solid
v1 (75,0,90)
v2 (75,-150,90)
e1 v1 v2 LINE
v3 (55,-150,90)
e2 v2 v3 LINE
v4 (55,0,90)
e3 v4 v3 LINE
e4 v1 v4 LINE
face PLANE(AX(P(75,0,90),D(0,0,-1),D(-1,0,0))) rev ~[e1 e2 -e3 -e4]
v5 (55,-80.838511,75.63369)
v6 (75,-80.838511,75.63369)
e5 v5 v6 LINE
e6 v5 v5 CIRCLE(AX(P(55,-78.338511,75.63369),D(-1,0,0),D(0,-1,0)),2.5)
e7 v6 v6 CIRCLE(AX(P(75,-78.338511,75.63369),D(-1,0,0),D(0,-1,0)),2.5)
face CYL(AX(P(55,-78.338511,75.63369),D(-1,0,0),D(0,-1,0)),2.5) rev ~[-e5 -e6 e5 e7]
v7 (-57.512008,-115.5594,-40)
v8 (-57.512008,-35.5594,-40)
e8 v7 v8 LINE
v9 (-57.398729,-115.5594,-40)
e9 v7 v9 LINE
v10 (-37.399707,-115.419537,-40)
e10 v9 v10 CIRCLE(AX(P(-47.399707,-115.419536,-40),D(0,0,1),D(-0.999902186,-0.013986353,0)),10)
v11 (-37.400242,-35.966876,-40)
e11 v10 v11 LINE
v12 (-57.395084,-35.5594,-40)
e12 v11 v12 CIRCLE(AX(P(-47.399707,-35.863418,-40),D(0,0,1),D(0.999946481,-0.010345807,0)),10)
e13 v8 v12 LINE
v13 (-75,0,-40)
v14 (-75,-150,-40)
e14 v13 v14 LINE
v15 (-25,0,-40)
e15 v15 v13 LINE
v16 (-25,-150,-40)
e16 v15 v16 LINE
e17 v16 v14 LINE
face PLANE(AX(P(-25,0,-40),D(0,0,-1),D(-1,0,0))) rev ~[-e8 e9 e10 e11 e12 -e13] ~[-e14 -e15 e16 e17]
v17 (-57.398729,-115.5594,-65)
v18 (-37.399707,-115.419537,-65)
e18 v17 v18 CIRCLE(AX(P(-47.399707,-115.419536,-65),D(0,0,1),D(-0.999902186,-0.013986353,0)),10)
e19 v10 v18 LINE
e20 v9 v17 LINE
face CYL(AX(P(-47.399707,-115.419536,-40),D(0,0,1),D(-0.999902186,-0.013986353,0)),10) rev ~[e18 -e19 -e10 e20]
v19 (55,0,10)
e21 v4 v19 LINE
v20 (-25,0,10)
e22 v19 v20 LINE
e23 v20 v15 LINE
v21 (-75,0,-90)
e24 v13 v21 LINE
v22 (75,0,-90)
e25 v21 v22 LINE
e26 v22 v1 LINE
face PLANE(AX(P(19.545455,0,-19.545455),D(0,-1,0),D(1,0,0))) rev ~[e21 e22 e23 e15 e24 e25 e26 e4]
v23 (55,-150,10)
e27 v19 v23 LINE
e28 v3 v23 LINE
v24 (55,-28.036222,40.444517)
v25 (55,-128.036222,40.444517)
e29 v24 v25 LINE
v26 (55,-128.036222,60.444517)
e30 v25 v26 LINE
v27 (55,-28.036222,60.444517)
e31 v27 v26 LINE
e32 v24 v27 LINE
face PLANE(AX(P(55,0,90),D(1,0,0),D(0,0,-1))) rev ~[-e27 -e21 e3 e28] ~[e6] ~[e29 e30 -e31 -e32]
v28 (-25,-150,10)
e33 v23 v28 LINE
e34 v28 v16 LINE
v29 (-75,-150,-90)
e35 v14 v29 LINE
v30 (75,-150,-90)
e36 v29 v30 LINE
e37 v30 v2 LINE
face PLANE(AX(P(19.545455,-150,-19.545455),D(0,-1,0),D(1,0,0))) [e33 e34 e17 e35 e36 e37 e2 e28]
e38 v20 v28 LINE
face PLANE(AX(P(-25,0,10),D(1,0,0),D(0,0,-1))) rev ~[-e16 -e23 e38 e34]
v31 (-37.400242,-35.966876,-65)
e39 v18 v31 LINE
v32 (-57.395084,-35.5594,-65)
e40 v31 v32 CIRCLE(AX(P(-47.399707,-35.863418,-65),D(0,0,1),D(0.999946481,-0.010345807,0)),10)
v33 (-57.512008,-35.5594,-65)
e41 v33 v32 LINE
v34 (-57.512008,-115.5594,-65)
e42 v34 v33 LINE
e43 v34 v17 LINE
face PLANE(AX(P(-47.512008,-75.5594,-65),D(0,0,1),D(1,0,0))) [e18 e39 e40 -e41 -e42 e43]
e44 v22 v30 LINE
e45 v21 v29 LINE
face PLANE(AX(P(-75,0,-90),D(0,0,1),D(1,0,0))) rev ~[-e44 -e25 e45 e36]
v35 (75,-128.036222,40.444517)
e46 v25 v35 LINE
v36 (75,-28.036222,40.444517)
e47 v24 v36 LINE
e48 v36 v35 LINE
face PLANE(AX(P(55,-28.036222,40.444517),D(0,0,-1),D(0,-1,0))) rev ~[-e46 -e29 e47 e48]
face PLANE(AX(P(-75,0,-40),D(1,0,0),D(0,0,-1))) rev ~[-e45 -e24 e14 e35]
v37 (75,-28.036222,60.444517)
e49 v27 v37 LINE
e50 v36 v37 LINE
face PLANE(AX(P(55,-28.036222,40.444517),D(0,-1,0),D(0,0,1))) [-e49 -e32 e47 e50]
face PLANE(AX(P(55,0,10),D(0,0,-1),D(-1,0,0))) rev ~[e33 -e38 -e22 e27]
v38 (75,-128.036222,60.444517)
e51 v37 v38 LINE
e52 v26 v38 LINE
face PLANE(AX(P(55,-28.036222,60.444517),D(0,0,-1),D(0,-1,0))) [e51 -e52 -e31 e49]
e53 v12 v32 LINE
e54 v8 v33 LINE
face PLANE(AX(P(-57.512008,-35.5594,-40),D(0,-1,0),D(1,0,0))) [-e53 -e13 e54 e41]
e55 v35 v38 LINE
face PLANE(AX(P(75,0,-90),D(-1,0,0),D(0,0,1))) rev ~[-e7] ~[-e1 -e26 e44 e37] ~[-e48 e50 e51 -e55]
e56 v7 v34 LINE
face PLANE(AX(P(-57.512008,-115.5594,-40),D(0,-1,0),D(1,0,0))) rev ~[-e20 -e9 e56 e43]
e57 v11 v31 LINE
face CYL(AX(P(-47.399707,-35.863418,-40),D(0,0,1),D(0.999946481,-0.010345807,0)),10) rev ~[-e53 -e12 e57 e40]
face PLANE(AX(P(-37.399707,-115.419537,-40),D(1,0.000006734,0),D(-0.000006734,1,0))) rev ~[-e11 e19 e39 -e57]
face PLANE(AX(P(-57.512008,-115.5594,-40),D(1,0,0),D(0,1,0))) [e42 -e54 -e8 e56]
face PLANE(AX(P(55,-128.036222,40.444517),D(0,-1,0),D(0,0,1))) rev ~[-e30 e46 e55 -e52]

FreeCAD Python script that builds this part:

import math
import FreeCAD as App
import Part
import Sketcher
Q = App.Units.Quantity

doc = App.newDocument("Part")
body = doc.addObject("PartDesign::Body", "Body")

sketch1 = body.newObject("Sketcher::SketchObject", "Sketch")
sketch1.AttachmentSupport = (doc.getObject("XZ_Plane"), [""])
sketch1.MapMode = "FlatFace"
sketch1.addGeometry(Part.LineSegment(App.Vector(75, -90, 0), App.Vector(75, 90, 0)), False)
sketch1.addGeometry(Part.LineSegment(App.Vector(75, 90, 0), App.Vector(55, 90, 0)), False)
sketch1.addGeometry(Part.LineSegment(App.Vector(55, 90, 0), App.Vector(55, 10, 0)), False)
sketch1.addGeometry(Part.LineSegment(App.Vector(55, 10, 0), App.Vector(-25, 10, 0)), False)
sketch1.addGeometry(Part.LineSegment(App.Vector(-25, 10, 0), App.Vector(-25, -40, 0)), False)
sketch1.addGeometry(Part.LineSegment(App.Vector(-25, -40, 0), App.Vector(-75, -40, 0)), False)
sketch1.addGeometry(Part.LineSegment(App.Vector(-75, -40, 0), App.Vector(-75, -90, 0)), False)
sketch1.addGeometry(Part.LineSegment(App.Vector(-75, -90, 0), App.Vector(75, -90, 0)), False)
sketch1.addConstraint(Sketcher.Constraint("Coincident", 0, 2, 1, 1))
sketch1.addConstraint(Sketcher.Constraint("Coincident", 1, 2, 2, 1))
sketch1.addConstraint(Sketcher.Constraint("Coincident", 2, 2, 3, 1))
sketch1.addConstraint(Sketcher.Constraint("Coincident", 3, 2, 4, 1))
sketch1.addConstraint(Sketcher.Constraint("Coincident", 4, 2, 5, 1))
sketch1.addConstraint(Sketcher.Constraint("Coincident", 5, 2, 6, 1))
sketch1.addConstraint(Sketcher.Constraint("Coincident", 6, 2, 7, 1))
sketch1.addConstraint(Sketcher.Constraint("Coincident", 7, 2, 0, 1))
sketch1.addConstraint(Sketcher.Constraint("Vertical", 0))
sketch1.addConstraint(Sketcher.Constraint("Horizontal", 1))
sketch1.addConstraint(Sketcher.Constraint("Vertical", 2))
sketch1.addConstraint(Sketcher.Constraint("Horizontal", 3))
sketch1.addConstraint(Sketcher.Constraint("Vertical", 4))
sketch1.addConstraint(Sketcher.Constraint("Horizontal", 5))
sketch1.addConstraint(Sketcher.Constraint("Vertical", 6))
sketch1.addConstraint(Sketcher.Constraint("Horizontal", 7))
sketch1.addConstraint(Sketcher.Constraint("Symmetric", 0, 2, 6, 2, -1, 1))
sketch1.addConstraint(Sketcher.Constraint("Equal", 3, 2))
sketch1.addConstraint(Sketcher.Constraint("Equal", 5, 4))
sketch1.addConstraint(Sketcher.Constraint("Equal", 4, 6))
sketch1.addConstraint(Sketcher.Constraint("DistanceX", 1, 2, 1, 1, Q("20 mm")))
sketch1.addConstraint(Sketcher.Constraint("DistanceX", 3, 2, 3, 1, Q("80 mm")))
sketch1.addConstraint(Sketcher.Constraint("DistanceX", 5, 2, 5, 1, Q("50 mm")))
pad1 = body.newObject("PartDesign::Pad", "Pad")
pad1.Profile = sketch1
pad1.Length = 150

sketch2 = body.newObject("Sketcher::SketchObject", "Sketch001")
sketch2.AttachmentSupport = (doc.getObject("YZ_Plane"), [""])
sketch2.MapMode = "FlatFace"
sketch2.AttachmentOffset = App.Placement(App.Vector(0, 0, 55), App.Rotation())
sketch2.addGeometry(Part.LineSegment(App.Vector(-28, 60, 0), App.Vector(-28, 40, 0)), False)
sketch2.addGeometry(Part.LineSegment(App.Vector(-28, 40, 0), App.Vector(-128, 40, 0)), False)
sketch2.addGeometry(Part.LineSegment(App.Vector(-128, 40, 0), App.Vector(-128, 60, 0)), False)
sketch2.addGeometry(Part.LineSegment(App.Vector(-128, 60, 0), App.Vector(-28, 60, 0)), False)
sketch2.addConstraint(Sketcher.Constraint("Coincident", 0, 2, 1, 1))
sketch2.addConstraint(Sketcher.Constraint("Coincident", 1, 2, 2, 1))
sketch2.addConstraint(Sketcher.Constraint("Coincident", 2, 2, 3, 1))
sketch2.addConstraint(Sketcher.Constraint("Coincident", 3, 2, 0, 1))
sketch2.addConstraint(Sketcher.Constraint("Vertical", 0))
sketch2.addConstraint(Sketcher.Constraint("Horizontal", 1))
sketch2.addConstraint(Sketcher.Constraint("Vertical", 2))
sketch2.addConstraint(Sketcher.Constraint("Horizontal", 3))
sketch2.addConstraint(Sketcher.Constraint("DistanceX", 1, 2, 1, 1, Q("100 mm")))
sketch2.addConstraint(Sketcher.Constraint("DistanceY", 0, 2, 0, 1, Q("20 mm")))
sketch2.addConstraint(Sketcher.Constraint("DistanceX", 0, 2, -1, 1, Q("28.036222 mm")))
sketch2.addConstraint(Sketcher.Constraint("DistanceY", -1, 1, 0, 2, Q("40.444517 mm")))
pocket1 = body.newObject("PartDesign::Pocket", "Pocket")
pocket1.Profile = sketch2
pocket1.Type = "ThroughAll"
pocket1.Reversed = True

sketch3 = body.newObject("Sketcher::SketchObject", "Sketch002")
sketch3.AttachmentSupport = (doc.getObject("XY_Plane"), [""])
sketch3.MapMode = "FlatFace"
sketch3.AttachmentOffset = App.Placement(App.Vector(0, 0, -40), App.Rotation())
sketch3.addGeometry(Part.LineSegment(App.Vector(-58, -36, 0), App.Vector(-58, -116, 0)), False)
sketch3.addGeometry(Part.LineSegment(App.Vector(-58, -116, 0), App.Vector(-38, -116, 0)), False)
sketch3.addGeometry(Part.LineSegment(App.Vector(-38, -116, 0), App.Vector(-38, -36, 0)), False)
sketch3.addGeometry(Part.LineSegment(App.Vector(-38, -36, 0), App.Vector(-58, -36, 0)), False)
sketch3.addConstraint(Sketcher.Constraint("Coincident", 0, 2, 1, 1))
sketch3.addConstraint(Sketcher.Constraint("Coincident", 1, 2, 2, 1))
sketch3.addConstraint(Sketcher.Constraint("Coincident", 2, 2, 3, 1))
sketch3.addConstraint(Sketcher.Constraint("Coincident", 3, 2, 0, 1))
sketch3.addConstraint(Sketcher.Constraint("Vertical", 0))
sketch3.addConstraint(Sketcher.Constraint("Horizontal", 1))
sketch3.addConstraint(Sketcher.Constraint("Vertical", 2))
sketch3.addConstraint(Sketcher.Constraint("Horizontal", 3))
sketch3.addConstraint(Sketcher.Constraint("DistanceX", 1, 1, 1, 2, Q("20 mm")))
sketch3.addConstraint(Sketcher.Constraint("DistanceY", 0, 2, 0, 1, Q("80 mm")))
sketch3.addConstraint(Sketcher.Constraint("DistanceY", 0, 2, -1, 1, Q("115.5594 mm")))
sketch3.addConstraint(Sketcher.Constraint("DistanceX", 0, 2, -1, 1, Q("57.512008 mm")))
pocket2 = body.newObject("PartDesign::Pocket", "Pocket001")
pocket2.Profile = sketch3
pocket2.Length = 25

sketch4 = body.newObject("Sketcher::SketchObject", "Sketch003")
sketch4.AttachmentSupport = (doc.getObject("XY_Plane"), [""])
sketch4.MapMode = "FlatFace"
sketch4.AttachmentOffset = App.Placement(App.Vector(0, 0, -40), App.Rotation())
sketch4.addGeometry(Part.LineSegment(App.Vector(-37, -115, 0), App.Vector(-37, -36, 0)), False)
sketch4.addGeometry(Part.ArcOfCircle(Part.Circle(App.Vector(-47, -36, 0), App.Vector(0, 0, 1), 10), math.radians(-1), math.radians(178)), False)
sketch4.addGeometry(Part.LineSegment(App.Vector(-57, -36, 0), App.Vector(-38, -36, 0)), False)
sketch4.addGeometry(Part.LineSegment(App.Vector(-38, -36, 0), App.Vector(-38, -116, 0)), False)
sketch4.addGeometry(Part.LineSegment(App.Vector(-38, -116, 0), App.Vector(-57, -116, 0)), False)
sketch4.addGeometry(Part.ArcOfCircle(Part.Circle(App.Vector(-47, -115, 0), App.Vector(0, 0, 1), 10), math.radians(-179), math.radians(0)), False)
sketch4.addConstraint(Sketcher.Constraint("Coincident", 0, 2, 1, 1))
sketch4.addConstraint(Sketcher.Constraint("Coincident", 1, 2, 2, 1))
sketch4.addConstraint(Sketcher.Constraint("Coincident", 2, 2, 3, 1))
sketch4.addConstraint(Sketcher.Constraint("Coincident", 3, 2, 4, 1))
sketch4.addConstraint(Sketcher.Constraint("Coincident", 4, 2, 5, 1))
sketch4.addConstraint(Sketcher.Constraint("Coincident", 5, 2, 0, 1))
sketch4.addConstraint(Sketcher.Constraint("Horizontal", 2))
sketch4.addConstraint(Sketcher.Constraint("Vertical", 3))
sketch4.addConstraint(Sketcher.Constraint("Horizontal", 4))
sketch4.addConstraint(Sketcher.Constraint("Equal", 1, 5))
sketch4.addConstraint(Sketcher.Constraint("Vertical", 1, 3, 5, 3))
sketch4.addConstraint(Sketcher.Constraint("Radius", 1, Q("10 mm")))
sketch4.addConstraint(Sketcher.Constraint("DistanceY", 3, 2, 3, 1, Q("80 mm")))
sketch4.addConstraint(Sketcher.Constraint("DistanceX", 4, 2, 4, 1, Q("19.886721 mm")))
sketch4.addConstraint(Sketcher.Constraint("DistanceY", 1, 2, -1, 1, Q("35.5594 mm")))
sketch4.addConstraint(Sketcher.Constraint("DistanceX", 1, 3, 2, 2, Q("9.887699 mm")))
sketch4.addConstraint(Sketcher.Constraint("Distance", 0, Q("79.452661 mm")))
sketch4.addConstraint(Sketcher.Constraint("DistanceX", 2, 1, 2, 2, Q("19.883076 mm")))
sketch4.addConstraint(Sketcher.Constraint("DistanceX", 2, 2, -1, 1, Q("37.512008 mm")))
sketch4.addConstraint(Sketcher.Constraint("DistanceY", 0, 2, 1, 3, Q("0.103458 mm")))
pocket3 = body.newObject("PartDesign::Pocket", "Pocket002")
pocket3.Profile = sketch4
pocket3.Length = 25

sketch5 = body.newObject("Sketcher::SketchObject", "Sketch004")
sketch5.AttachmentSupport = (doc.getObject("YZ_Plane"), [""])
sketch5.MapMode = "FlatFace"
sketch5.AttachmentOffset = App.Placement(App.Vector(0, 0, 55), App.Rotation())
sketch5.addGeometry(Part.Circle(App.Vector(-78.3, 75.6, 0), App.Vector(0, 0, 1), 2.5), False)
sketch5.addConstraint(Sketcher.Constraint("Diameter", 0, Q("5 mm")))
sketch5.addConstraint(Sketcher.Constraint("DistanceX", 0, 3, -1, 1, Q("78.338511 mm")))
sketch5.addConstraint(Sketcher.Constraint("DistanceY", -1, 1, 0, 3, Q("75.63369 mm")))
pocket4 = body.newObject("PartDesign::Pocket", "Pocket003")
pocket4.Profile = sketch5
pocket4.Type = "ThroughAll"
pocket4.Reversed = True

doc.recompute()
